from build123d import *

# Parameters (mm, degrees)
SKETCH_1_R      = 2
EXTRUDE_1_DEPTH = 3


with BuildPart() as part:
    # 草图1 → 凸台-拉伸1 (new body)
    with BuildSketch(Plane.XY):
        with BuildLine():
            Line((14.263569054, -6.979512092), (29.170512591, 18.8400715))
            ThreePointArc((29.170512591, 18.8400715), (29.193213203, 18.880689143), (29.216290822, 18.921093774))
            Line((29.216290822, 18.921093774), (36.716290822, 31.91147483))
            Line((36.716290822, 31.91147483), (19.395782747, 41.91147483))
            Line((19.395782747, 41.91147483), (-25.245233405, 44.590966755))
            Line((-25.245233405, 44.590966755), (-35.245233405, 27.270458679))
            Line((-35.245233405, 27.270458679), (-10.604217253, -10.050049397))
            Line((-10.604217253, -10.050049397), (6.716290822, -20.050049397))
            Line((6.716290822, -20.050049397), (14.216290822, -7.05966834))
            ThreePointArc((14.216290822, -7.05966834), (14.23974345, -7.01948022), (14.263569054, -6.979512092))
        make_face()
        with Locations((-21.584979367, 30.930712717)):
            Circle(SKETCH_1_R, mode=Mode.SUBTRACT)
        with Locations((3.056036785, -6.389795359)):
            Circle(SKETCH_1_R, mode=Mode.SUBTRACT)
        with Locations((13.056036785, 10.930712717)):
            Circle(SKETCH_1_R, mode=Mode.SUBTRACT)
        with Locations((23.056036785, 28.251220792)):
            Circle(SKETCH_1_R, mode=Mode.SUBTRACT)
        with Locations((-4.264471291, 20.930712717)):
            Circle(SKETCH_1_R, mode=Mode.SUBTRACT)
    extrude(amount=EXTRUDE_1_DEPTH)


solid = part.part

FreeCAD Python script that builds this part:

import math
import FreeCAD as App
import Part
import Sketcher
from FreeCAD import Vector

doc = App.newDocument("Part")
body = doc.addObject("PartDesign::Body", "Body")

# Sketch on XY plane
sketch1 = doc.addObject("Sketcher::SketchObject", "Sketch")
body.addObject(sketch1)
sketch1.AttachmentSupport = (doc.XY_Plane, [""])
sketch1.MapMode = "FlatFace"
sketch1.addGeometry(Part.LineSegment(Vector(14.263569, -6.979512, 0), Vector(29.170513, 18.840072, 0)), False)
sketch1.addGeometry(Part.ArcOfCircle(Part.Circle(Vector(33.546415, 16.421095, 0), Vector(0, 0, 1), 4.999997), math.radians(150), math.radians(151.066411)), False)
sketch1.addGeometry(Part.LineSegment(Vector(29.216291, 18.921094, 0), Vector(36.716291, 31.911475, 0)), False)
sketch1.addGeometry(Part.LineSegment(Vector(36.716291, 31.911475, 0), Vector(19.395783, 41.911475, 0)), False)
sketch1.addGeometry(Part.LineSegment(Vector(19.395783, 41.911475, 0), Vector(-25.245233, 44.590967, 0)), False)
sketch1.addGeometry(Part.LineSegment(Vector(-25.245233, 44.590967, 0), Vector(-35.245233, 27.270459, 0)), False)
sketch1.addGeometry(Part.LineSegment(Vector(-35.245233, 27.270459, 0), Vector(-10.604217, -10.050049, 0)), False)
sketch1.addGeometry(Part.LineSegment(Vector(-10.604217, -10.050049, 0), Vector(6.716291, -20.050049, 0)), False)
sketch1.addGeometry(Part.LineSegment(Vector(6.716291, -20.050049, 0), Vector(14.216291, -7.059668, 0)), False)
sketch1.addGeometry(Part.ArcOfCircle(Part.Circle(Vector(18.546425, -9.559672, 0), Vector(0, 0, 1), 5.000008), math.radians(148.933591), math.radians(149.999999)), False)
sketch1.addGeometry(Part.Circle(Vector(3.056037, -6.389795, 0), Vector(0, 0, 1), 2), False)
sketch1.addGeometry(Part.Circle(Vector(13.056037, 10.930713, 0), Vector(0, 0, 1), 2), False)
sketch1.addGeometry(Part.Circle(Vector(-4.264471, 20.930713, 0), Vector(0, 0, 1), 2), False)
sketch1.addGeometry(Part.Circle(Vector(-21.584979, 30.930713, 0), Vector(0, 0, 1), 2), False)
sketch1.addGeometry(Part.Circle(Vector(23.056037, 28.251221, 0), Vector(0, 0, 1), 2), False)
sketch1.addConstraint(Sketcher.Constraint("Coincident", 0, 2, 1, 2))
sketch1.addConstraint(Sketcher.Constraint("Coincident", 1, 1, 2, 1))
sketch1.addConstraint(Sketcher.Constraint("Coincident", 2, 2, 3, 1))
sketch1.addConstraint(Sketcher.Constraint("Coincident", 3, 2, 4, 1))
sketch1.addConstraint(Sketcher.Constraint("Coincident", 4, 2, 5, 1))
sketch1.addConstraint(Sketcher.Constraint("Coincident", 5, 2, 6, 1))
sketch1.addConstraint(Sketcher.Constraint("Coincident", 6, 2, 7, 1))
sketch1.addConstraint(Sketcher.Constraint("Coincident", 7, 2, 8, 1))
sketch1.addConstraint(Sketcher.Constraint("Coincident", 8, 2, 9, 2))
sketch1.addConstraint(Sketcher.Constraint("Coincident", 9, 1, 0, 1))
sketch1.addConstraint(Sketcher.Constraint("Diameter", 10, 4.0))
sketch1.addConstraint(Sketcher.Constraint("Diameter", 11, 4.0))
sketch1.addConstraint(Sketcher.Constraint("Diameter", 12, 4.0))
sketch1.addConstraint(Sketcher.Constraint("Diameter", 13, 4.0))
sketch1.addConstraint(Sketcher.Constraint("Diameter", 14, 4.0))
sketch1.addConstraint(Sketcher.Constraint("Distance", 2, 15.0))
sketch1.addConstraint(Sketcher.Constraint("Distance", 3, 20.0))
sketch1.addConstraint(Sketcher.Constraint("Distance", 5, 20.0))
sketch1.addConstraint(Sketcher.Constraint("Distance", 7, 20.0))
sketch1.addConstraint(Sketcher.Constraint("Distance", 8, 15.0))
sketch1.addConstraint(Sketcher.Constraint("DistanceX", 10, 3, 11, 3, 10.0))
sketch1.addConstraint(Sketcher.Constraint("DistanceY", 11, 3, 12, 3, 10.0))
sketch1.addConstraint(Sketcher.Constraint("DistanceY", 12, 3, 13, 3, 10.0))
sketch1.addConstraint(Sketcher.Constraint("DistanceX", 11, 3, 14, 3, 10.0))
sketch1.addConstraint(Sketcher.Constraint("DistanceY", 2, 2, 3, 2, 10.0))
sketch1.addConstraint(Sketcher.Constraint("DistanceX", 5, 2, 4, 2, 10.0))
sketch1.addConstraint(Sketcher.Constraint("DistanceY", 7, 2, 6, 2, 10.0))
sketch1.addConstraint(Sketcher.Constraint("DistanceY", 1, 3, 1, 1, 2.499999))
sketch1.addConstraint(Sketcher.Constraint("DistanceX", 1, 1, 2, 2, 7.5))
sketch1.addConstraint(Sketcher.Constraint("DistanceX", 7, 2, 8, 2, 7.5))
sketch1.addConstraint(Sketcher.Constraint("Radius", 1, 4.999997))
sketch1.addConstraint(Sketcher.Constraint("Radius", 9, 5.000008))
sketch1.addConstraint(Sketcher.Constraint("Distance", 4, 44.72136))
sketch1.addConstraint(Sketcher.Constraint("Distance", 6, 44.72136))
sketch1.addConstraint(Sketcher.Constraint("DistanceX", 12, 3, -1, 1, 4.264471))
sketch1.addConstraint(Sketcher.Constraint("DistanceX", 13, 3, -1, 1, 21.584979))
sketch1.addConstraint(Sketcher.Constraint("DistanceY", -1, 1, 14, 3, 28.251221))
sketch1.addConstraint(Sketcher.Constraint("DistanceY", -1, 1, 0, 2, 18.840072))
sketch1.addConstraint(Sketcher.Constraint("DistanceX", -1, 1, 1, 1, 29.216291))
sketch1.addConstraint(Sketcher.Constraint("DistanceY", -1, 1, 5, 2, 27.270459))
sketch1.addConstraint(Sketcher.Constraint("DistanceY", 6, 2, -1, 1, 10.050049))
sketch1.addConstraint(Sketcher.Constraint("DistanceX", -1, 1, 7, 2, 6.716291))
sketch1.addConstraint(Sketcher.Constraint("DistanceX", -1, 1, 9, 1, 14.263569))
sketch1.addConstraint(Sketcher.Constraint("DistanceX", 9, 3, 1, 3, 14.999991))
sketch1.addConstraint(Sketcher.Constraint("DistanceX", 10, 3, 1, 3, 30.490379))
sketch1.addConstraint(Sketcher.Constraint("DistanceY", 10, 3, 1, 3, 22.810891))
sketch1.addConstraint(Sketcher.Constraint("DistanceY", 10, 3, 11, 3, 17.320508))
pad1 = doc.addObject("PartDesign::Pad", "Pad")
body.addObject(pad1)
pad1.Profile = sketch1
pad1.Length = 3

doc.recompute()
